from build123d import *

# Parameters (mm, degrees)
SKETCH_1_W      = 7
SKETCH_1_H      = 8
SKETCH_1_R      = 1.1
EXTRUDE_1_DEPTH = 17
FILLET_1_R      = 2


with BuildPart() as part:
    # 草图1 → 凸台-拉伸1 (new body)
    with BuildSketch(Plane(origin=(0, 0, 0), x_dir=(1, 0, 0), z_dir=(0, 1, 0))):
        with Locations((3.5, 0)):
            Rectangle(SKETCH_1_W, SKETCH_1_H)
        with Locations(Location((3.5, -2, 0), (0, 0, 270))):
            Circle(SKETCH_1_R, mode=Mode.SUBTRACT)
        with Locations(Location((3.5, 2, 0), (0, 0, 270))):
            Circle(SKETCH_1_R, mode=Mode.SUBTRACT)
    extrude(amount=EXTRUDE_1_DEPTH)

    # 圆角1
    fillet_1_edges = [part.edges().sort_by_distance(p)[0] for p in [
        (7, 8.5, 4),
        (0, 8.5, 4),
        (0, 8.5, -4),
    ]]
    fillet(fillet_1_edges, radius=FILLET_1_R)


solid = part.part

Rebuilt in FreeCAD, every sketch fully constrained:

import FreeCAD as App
import Part
import Sketcher

V = App.Vector
Q = App.Units.Quantity


def edges_at(feature, points):
    """Names of the edges that pass closest to the given points."""
    edges = feature.Shape.Edges
    near = lambda p: min(range(len(edges)), key=lambda i: edges[i].distToShape(Part.Vertex(*p))[0])
    return sorted({f"Edge{near(p) + 1}" for p in points})

doc = App.newDocument("Part")
body = doc.addObject("PartDesign::Body", "Body")

sketch1 = body.newObject("Sketcher::SketchObject", "Sketch")
sketch1.AttachmentSupport = (doc.getObject("XZ_Plane"), [""])
sketch1.MapMode = "FlatFace"
sketch1.addGeometry([
    Part.LineSegment(V(0, -4, 0), V(0, 4, 0)),
    Part.LineSegment(V(0, 4, 0), V(7, 4, 0)),
    Part.LineSegment(V(7, 4, 0), V(7, -4, 0)),
    Part.LineSegment(V(7, -4, 0), V(0, -4, 0)),
    Part.Circle(V(3.5, 2, 0), V(0, 0, 1), 1.1),
    Part.Circle(V(3.5, -2, 0), V(0, 0, 1), 1.1),
], False)
sketch1.addConstraint([
    Sketcher.Constraint("Coincident", 0, 2, 1, 1),
    Sketcher.Constraint("Coincident", 1, 2, 2, 1),
    Sketcher.Constraint("Coincident", 2, 2, 3, 1),
    Sketcher.Constraint("Coincident", 3, 2, 0, 1),
    Sketcher.Constraint("Vertical", 0),
    Sketcher.Constraint("Horizontal", 1),
    Sketcher.Constraint("Vertical", 2),
    Sketcher.Constraint("Horizontal", 3),
    Sketcher.Constraint("Equal", 4, 5),
    Sketcher.Constraint("Symmetric", 0, 2, 3, 2, -1, 1),
    Sketcher.Constraint("Symmetric", 4, 3, 5, 3, -1),
    Sketcher.Constraint("Diameter", 4, Q("2.2 mm")),
    Sketcher.Constraint("DistanceX", 1, 1, 1, 2, Q("7 mm")),
    Sketcher.Constraint("DistanceY", 0, 1, 0, 2, Q("8 mm")),
    Sketcher.Constraint("DistanceY", -1, 1, 4, 3, Q("2 mm")),
    Sketcher.Constraint("DistanceX", -1, 1, 4, 3, Q("3.5 mm")),
])
pad1 = body.newObject("PartDesign::Pad", "Pad")
pad1.Profile = sketch1
pad1.Length = 17
pad1.Reversed = True
doc.recompute()

fillet = body.newObject("PartDesign::Fillet", "Fillet")
fillet.Base = (pad1, edges_at(pad1, [(7, 8.5, 4), (0, 8.5, 4), (0, 8.5, -4)]))
fillet.Radius = 2

doc.recompute()
